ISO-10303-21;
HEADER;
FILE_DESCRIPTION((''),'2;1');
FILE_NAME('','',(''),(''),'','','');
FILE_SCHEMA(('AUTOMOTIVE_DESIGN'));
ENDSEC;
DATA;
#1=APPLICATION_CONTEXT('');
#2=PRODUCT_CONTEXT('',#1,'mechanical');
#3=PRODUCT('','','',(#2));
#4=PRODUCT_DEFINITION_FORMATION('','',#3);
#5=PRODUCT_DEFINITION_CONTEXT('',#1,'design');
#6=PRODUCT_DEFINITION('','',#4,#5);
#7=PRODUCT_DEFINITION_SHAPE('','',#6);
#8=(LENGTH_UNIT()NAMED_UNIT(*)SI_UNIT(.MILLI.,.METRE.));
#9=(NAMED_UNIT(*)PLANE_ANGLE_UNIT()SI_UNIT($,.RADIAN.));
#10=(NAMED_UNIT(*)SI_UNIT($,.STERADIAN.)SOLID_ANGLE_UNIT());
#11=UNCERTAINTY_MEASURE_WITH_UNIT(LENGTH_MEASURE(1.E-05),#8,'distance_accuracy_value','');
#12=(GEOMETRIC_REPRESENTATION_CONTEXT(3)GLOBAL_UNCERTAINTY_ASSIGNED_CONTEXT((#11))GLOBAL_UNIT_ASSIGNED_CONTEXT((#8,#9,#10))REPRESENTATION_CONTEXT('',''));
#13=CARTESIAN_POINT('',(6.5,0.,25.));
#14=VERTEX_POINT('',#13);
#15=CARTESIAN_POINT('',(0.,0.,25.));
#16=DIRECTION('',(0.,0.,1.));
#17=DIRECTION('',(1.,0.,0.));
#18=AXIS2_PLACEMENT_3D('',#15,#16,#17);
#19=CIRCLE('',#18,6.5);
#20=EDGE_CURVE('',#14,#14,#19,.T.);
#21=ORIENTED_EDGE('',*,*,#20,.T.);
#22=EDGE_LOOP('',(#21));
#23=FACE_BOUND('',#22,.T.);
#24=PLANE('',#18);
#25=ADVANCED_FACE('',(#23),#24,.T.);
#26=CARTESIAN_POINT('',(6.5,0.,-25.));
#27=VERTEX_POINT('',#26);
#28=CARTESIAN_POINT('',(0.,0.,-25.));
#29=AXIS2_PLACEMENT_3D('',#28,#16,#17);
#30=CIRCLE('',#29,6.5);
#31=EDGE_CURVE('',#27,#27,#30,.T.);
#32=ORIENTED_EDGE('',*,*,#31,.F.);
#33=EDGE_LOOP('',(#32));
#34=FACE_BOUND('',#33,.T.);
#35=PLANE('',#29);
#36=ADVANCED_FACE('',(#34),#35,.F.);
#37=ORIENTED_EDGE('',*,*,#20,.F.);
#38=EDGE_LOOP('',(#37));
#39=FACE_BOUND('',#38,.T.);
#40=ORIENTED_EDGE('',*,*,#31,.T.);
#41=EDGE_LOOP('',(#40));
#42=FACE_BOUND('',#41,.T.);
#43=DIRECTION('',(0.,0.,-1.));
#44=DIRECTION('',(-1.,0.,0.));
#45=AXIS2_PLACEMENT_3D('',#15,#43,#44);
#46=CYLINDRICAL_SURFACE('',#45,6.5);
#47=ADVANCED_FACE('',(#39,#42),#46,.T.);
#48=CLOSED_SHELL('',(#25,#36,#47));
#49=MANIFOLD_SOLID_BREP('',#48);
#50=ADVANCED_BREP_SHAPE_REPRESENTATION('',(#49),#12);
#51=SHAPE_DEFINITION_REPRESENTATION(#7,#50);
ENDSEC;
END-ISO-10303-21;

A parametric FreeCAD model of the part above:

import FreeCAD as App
import Part
import Sketcher
from FreeCAD import Vector

doc = App.newDocument("Part")
body = doc.addObject("PartDesign::Body", "Body")

sketch1 = body.newObject("Sketcher::SketchObject", "Sketch")
sketch1.AttachmentSupport = (doc.getObject("XY_Plane"), [""])
sketch1.MapMode = "FlatFace"
sketch1.addGeometry(Part.Circle(Vector(0, 0, 0), Vector(0, 0, 1), 6), False)
sketch1.addConstraint([
    Sketcher.Constraint("Coincident", 0, 3, -1, 1),
    Sketcher.Constraint("Diameter", 0, 13.0),
])
pad1 = body.newObject("PartDesign::Pad", "Pad")
pad1.Profile = sketch1
pad1.Length = 50
pad1.Midplane = True

doc.recompute()
